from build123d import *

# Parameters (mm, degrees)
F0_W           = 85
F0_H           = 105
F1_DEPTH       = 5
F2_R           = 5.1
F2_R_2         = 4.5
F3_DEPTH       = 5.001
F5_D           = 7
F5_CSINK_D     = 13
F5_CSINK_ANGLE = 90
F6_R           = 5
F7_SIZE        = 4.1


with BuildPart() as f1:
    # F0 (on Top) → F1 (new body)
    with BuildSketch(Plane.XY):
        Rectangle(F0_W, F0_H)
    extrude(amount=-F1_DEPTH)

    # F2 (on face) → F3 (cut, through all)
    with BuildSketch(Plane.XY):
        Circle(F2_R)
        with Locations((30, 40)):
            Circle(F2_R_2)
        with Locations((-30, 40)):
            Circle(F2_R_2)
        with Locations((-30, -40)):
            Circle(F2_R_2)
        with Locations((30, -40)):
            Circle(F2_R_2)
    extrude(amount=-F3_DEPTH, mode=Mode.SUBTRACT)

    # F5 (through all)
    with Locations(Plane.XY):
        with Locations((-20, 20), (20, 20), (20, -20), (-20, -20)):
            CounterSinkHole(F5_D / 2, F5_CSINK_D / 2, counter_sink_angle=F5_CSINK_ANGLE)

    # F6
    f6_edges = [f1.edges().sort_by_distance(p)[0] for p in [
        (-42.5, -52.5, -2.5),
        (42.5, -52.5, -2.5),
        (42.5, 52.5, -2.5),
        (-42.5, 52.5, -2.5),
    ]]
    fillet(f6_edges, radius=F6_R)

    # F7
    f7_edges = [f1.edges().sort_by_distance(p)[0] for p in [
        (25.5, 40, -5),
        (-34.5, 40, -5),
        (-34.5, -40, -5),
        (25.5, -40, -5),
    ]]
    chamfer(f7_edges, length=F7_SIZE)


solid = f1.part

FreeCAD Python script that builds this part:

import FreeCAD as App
import Part
import Sketcher

V = App.Vector


def edges_at(feature, points):
    """Names of the edges that pass closest to the given points."""
    edges = feature.Shape.Edges
    near = lambda p: min(range(len(edges)), key=lambda i: edges[i].distToShape(Part.Vertex(*p))[0])
    return sorted({f"Edge{near(p) + 1}" for p in points})

doc = App.newDocument("Part")
body = doc.addObject("PartDesign::Body", "Body")

# Sketch on XY plane
sketch1 = body.newObject("Sketcher::SketchObject", "Sketch")
sketch1.AttachmentSupport = (doc.getObject("XY_Plane"), [""])
sketch1.MapMode = "FlatFace"
sketch1.addGeometry(Part.LineSegment(V(-42.5, 52.5, 0), V(-42.5, -52.5, 0)), False)
sketch1.addGeometry(Part.LineSegment(V(-42.5, -52.5, 0), V(42.5, -52.5, 0)), False)
sketch1.addGeometry(Part.LineSegment(V(42.5, -52.5, 0), V(42.5, 52.5, 0)), False)
sketch1.addGeometry(Part.LineSegment(V(42.5, 52.5, 0), V(-42.5, 52.5, 0)), False)
sketch1.addConstraint(Sketcher.Constraint("Coincident", 0, 2, 1, 1))
sketch1.addConstraint(Sketcher.Constraint("Coincident", 1, 2, 2, 1))
sketch1.addConstraint(Sketcher.Constraint("Coincident", 2, 2, 3, 1))
sketch1.addConstraint(Sketcher.Constraint("Coincident", 3, 2, 0, 1))
sketch1.addConstraint(Sketcher.Constraint("Vertical", 0))
sketch1.addConstraint(Sketcher.Constraint("Horizontal", 1))
sketch1.addConstraint(Sketcher.Constraint("Vertical", 2))
sketch1.addConstraint(Sketcher.Constraint("Horizontal", 3))
sketch1.addConstraint(Sketcher.Constraint("Symmetric", 0, 2, 2, 2, -1, 1))
sketch1.addConstraint(Sketcher.Constraint("DistanceX", 1, 1, 1, 2, 85.0))
sketch1.addConstraint(Sketcher.Constraint("DistanceY", 0, 2, 0, 1, 105.0))
pad1 = body.newObject("PartDesign::Pad", "Pad")
pad1.Profile = sketch1
pad1.Length = 5
pad1.Reversed = True

# Sketch on XY plane
sketch2 = body.newObject("Sketcher::SketchObject", "Sketch001")
sketch2.AttachmentSupport = (doc.getObject("XY_Plane"), [""])
sketch2.MapMode = "FlatFace"
sketch2.addGeometry(Part.Circle(V(0, 0, 0), V(0, 0, 1), 5.1), False)
sketch2.addGeometry(Part.Circle(V(30, 40, 0), V(0, 0, 1), 4.5), False)
sketch2.addGeometry(Part.Circle(V(-30, 40, 0), V(0, 0, 1), 4.5), False)
sketch2.addGeometry(Part.Circle(V(-30, -40, 0), V(0, 0, 1), 4.5), False)
sketch2.addGeometry(Part.Circle(V(30, -40, 0), V(0, 0, 1), 4.5), False)
sketch2.addConstraint(Sketcher.Constraint("Coincident", 0, 3, -1, 1))
sketch2.addConstraint(Sketcher.Constraint("Equal", 1, 2))
sketch2.addConstraint(Sketcher.Constraint("Equal", 2, 3))
sketch2.addConstraint(Sketcher.Constraint("Equal", 3, 4))
sketch2.addConstraint(Sketcher.Constraint("Symmetric", 1, 3, 3, 3, -1, 1))
sketch2.addConstraint(Sketcher.Constraint("Symmetric", 2, 3, 4, 3, -1, 1))
sketch2.addConstraint(Sketcher.Constraint("Symmetric", 1, 3, 2, 3, -2))
sketch2.addConstraint(Sketcher.Constraint("Diameter", 1, 9.0))
sketch2.addConstraint(Sketcher.Constraint("Diameter", 0, 10.2))
sketch2.addConstraint(Sketcher.Constraint("DistanceX", -1, 1, 1, 3, 30.0))
sketch2.addConstraint(Sketcher.Constraint("DistanceY", -1, 1, 1, 3, 40.0))
pocket1 = body.newObject("PartDesign::Pocket", "Pocket")
pocket1.Profile = sketch2
pocket1.Type = "ThroughAll"

# Sketch on XY plane
sketch3 = body.newObject("Sketcher::SketchObject", "Sketch002")
sketch3.AttachmentSupport = (doc.getObject("XY_Plane"), [""])
sketch3.MapMode = "FlatFace"
sketch3.addGeometry(Part.Circle(V(-20, 20, 0), V(0, 0, 1), 3.5), False)
sketch3.addGeometry(Part.Circle(V(20, 20, 0), V(0, 0, 1), 3.5), False)
sketch3.addGeometry(Part.Circle(V(20, -20, 0), V(0, 0, 1), 3.5), False)
sketch3.addGeometry(Part.Circle(V(-20, -20, 0), V(0, 0, 1), 3.5), False)
sketch3.addConstraint(Sketcher.Constraint("Equal", 0, 1))
sketch3.addConstraint(Sketcher.Constraint("Equal", 1, 2))
sketch3.addConstraint(Sketcher.Constraint("Equal", 2, 3))
sketch3.addConstraint(Sketcher.Constraint("Symmetric", 0, 3, 2, 3, -1, 1))
sketch3.addConstraint(Sketcher.Constraint("Symmetric", 1, 3, 3, 3, -1, 1))
sketch3.addConstraint(Sketcher.Constraint("Symmetric", 0, 3, 1, 3, -2))
sketch3.addConstraint(Sketcher.Constraint("Diameter", 0, 7.0))
sketch3.addConstraint(Sketcher.Constraint("DistanceX", 0, 3, -1, 1, 20.0))
sketch3.addConstraint(Sketcher.Constraint("DistanceY", -1, 1, 0, 3, 20.0))
doc.recompute()
hole = body.newObject("PartDesign::Hole", "Hole")
hole.Profile = sketch3
hole.ThreadType = "None"
hole.Diameter = 7
hole.DepthType = "ThroughAll"
hole.HoleCutType = "Countersink"
hole.HoleCutDiameter = 13
hole.HoleCutCountersinkAngle = 90
doc.recompute()

fillet = body.newObject("PartDesign::Fillet", "Fillet")
fillet.Base = (hole, edges_at(hole, [
    (-42.5, -52.5, -2.5),
    (42.5, -52.5, -2.5),
    (42.5, 52.5, -2.5),
    (-42.5, 52.5, -2.5),
]))
fillet.Radius = 5
doc.recompute()

chamfer = body.newObject("PartDesign::Chamfer", "Chamfer")
chamfer.Base = (fillet, edges_at(fillet, [
    (25.5, 40, -5),
    (-34.5, 40, -5),
    (-34.5, -40, -5),
    (25.5, -40, -5),
]))
chamfer.Size = 4.1

doc.recompute()
